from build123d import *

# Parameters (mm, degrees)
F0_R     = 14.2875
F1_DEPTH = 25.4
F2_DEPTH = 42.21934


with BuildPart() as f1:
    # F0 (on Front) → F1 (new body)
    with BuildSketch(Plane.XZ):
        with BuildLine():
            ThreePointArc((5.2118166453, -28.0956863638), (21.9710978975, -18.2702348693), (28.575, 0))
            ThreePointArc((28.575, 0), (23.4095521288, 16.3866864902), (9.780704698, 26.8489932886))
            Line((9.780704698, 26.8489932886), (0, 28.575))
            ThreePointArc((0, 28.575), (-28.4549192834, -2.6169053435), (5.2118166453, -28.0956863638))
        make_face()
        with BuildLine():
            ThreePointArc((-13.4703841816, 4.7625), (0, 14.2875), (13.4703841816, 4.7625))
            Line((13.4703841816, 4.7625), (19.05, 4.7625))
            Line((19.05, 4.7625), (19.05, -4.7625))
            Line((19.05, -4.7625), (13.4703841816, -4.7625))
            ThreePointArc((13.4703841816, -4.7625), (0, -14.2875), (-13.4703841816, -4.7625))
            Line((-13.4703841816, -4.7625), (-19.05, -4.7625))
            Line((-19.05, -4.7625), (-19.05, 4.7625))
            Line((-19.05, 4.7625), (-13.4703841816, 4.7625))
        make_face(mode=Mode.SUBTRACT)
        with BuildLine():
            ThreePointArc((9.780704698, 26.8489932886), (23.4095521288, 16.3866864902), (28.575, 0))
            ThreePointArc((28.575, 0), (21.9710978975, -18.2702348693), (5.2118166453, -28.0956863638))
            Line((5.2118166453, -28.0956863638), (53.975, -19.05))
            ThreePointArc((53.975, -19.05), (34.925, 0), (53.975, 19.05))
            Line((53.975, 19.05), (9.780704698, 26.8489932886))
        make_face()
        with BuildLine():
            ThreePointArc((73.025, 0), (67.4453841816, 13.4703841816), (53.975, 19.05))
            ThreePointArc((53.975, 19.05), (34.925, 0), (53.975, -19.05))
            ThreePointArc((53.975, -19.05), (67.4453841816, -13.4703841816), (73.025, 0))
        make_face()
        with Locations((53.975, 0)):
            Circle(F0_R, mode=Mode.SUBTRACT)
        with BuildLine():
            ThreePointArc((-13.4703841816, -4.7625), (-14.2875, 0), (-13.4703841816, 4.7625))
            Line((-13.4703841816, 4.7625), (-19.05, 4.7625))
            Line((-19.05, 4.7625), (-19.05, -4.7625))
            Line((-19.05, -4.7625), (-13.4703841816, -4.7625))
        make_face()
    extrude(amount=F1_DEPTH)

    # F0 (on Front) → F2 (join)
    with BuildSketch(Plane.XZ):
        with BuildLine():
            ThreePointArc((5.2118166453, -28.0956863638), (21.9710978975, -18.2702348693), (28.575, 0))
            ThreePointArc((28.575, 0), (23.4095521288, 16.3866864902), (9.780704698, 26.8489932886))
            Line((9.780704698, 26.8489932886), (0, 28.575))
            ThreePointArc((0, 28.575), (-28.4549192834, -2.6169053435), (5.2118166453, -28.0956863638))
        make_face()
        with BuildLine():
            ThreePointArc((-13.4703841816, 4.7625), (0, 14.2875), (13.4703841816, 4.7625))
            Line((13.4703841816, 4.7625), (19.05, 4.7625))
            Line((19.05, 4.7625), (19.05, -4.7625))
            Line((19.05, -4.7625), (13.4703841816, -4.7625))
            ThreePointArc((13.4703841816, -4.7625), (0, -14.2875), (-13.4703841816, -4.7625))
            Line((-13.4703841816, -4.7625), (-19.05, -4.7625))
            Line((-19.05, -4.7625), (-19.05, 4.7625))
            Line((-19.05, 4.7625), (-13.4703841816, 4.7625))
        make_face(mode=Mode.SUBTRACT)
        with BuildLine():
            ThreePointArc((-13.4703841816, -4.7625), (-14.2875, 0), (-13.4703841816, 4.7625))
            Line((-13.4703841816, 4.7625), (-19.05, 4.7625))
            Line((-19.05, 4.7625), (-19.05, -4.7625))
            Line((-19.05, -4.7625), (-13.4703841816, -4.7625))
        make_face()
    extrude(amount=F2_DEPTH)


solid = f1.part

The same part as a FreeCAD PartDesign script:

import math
import FreeCAD as App
import Part
import Sketcher
Q = App.Units.Quantity

doc = App.newDocument("Part")
body = doc.addObject("PartDesign::Body", "Body")

# Sketch on XZ plane
sketch1 = body.newObject("Sketcher::SketchObject", "Sketch")
sketch1.AttachmentSupport = (doc.getObject("XZ_Plane"), [""])
sketch1.MapMode = "FlatFace"
sketch1.addGeometry([
    Part.ArcOfCircle(Part.Circle(App.Vector(0, 0, 0), App.Vector(0, 0, 1), 29), math.radians(90), math.radians(281)),  # 0
    Part.LineSegment(App.Vector(5, -28, 0), App.Vector(54, -19, 0)),  # 1
    Part.ArcOfCircle(Part.Circle(App.Vector(54, 0, 0), App.Vector(0, 0, 1), 19), math.radians(-90), math.radians(90)),  # 2
    Part.LineSegment(App.Vector(54, 19, 0), App.Vector(10, 27, 0)),  # 3
    Part.LineSegment(App.Vector(10, 27, 0), App.Vector(0, 29, 0)),  # 4
    Part.Circle(App.Vector(54, 0, 0), App.Vector(0, 0, 1), 14),  # 5
    Part.ArcOfCircle(Part.Circle(App.Vector(0, 0, 0), App.Vector(0, 0, 1), 14), math.radians(19), math.radians(161)),  # 6
    Part.LineSegment(App.Vector(13, 5, 0), App.Vector(19, 5, 0)),  # 7
    Part.LineSegment(App.Vector(19, 5, 0), App.Vector(19, -5, 0)),  # 8
    Part.LineSegment(App.Vector(19, -5, 0), App.Vector(13, -5, 0)),  # 9
    Part.ArcOfCircle(Part.Circle(App.Vector(0, 0, 0), App.Vector(0, 0, 1), 14), math.radians(-161), math.radians(-19)),  # 10
    Part.ArcOfCircle(Part.Circle(App.Vector(0, 0, 0), App.Vector(0, 0, 1), 14), math.radians(161), math.radians(199)),  # 11
], False)
sketch1.addConstraint([
    Sketcher.Constraint("Tangent", 0, 2, 1, 1),
    Sketcher.Constraint("Coincident", 1, 2, 2, 1),
    Sketcher.Constraint("Coincident", 2, 2, 3, 1),
    Sketcher.Constraint("Coincident", 3, 2, 4, 1),
    Sketcher.Constraint("Coincident", 4, 2, 0, 1),
    Sketcher.Constraint("Coincident", 6, 1, 7, 1),
    Sketcher.Constraint("Coincident", 7, 2, 8, 1),
    Sketcher.Constraint("Coincident", 8, 2, 9, 1),
    Sketcher.Constraint("Coincident", 9, 2, 10, 2),
    Sketcher.Constraint("Tangent", 10, 1, 11, 2),
    Sketcher.Constraint("Tangent", 11, 1, 6, 2),
    Sketcher.Constraint("Horizontal", 7),
    Sketcher.Constraint("Vertical", 8),
    Sketcher.Constraint("Horizontal", 9),
    Sketcher.Constraint("Coincident", 0, 3, -1, 1),
    Sketcher.Constraint("Coincident", 6, 3, -1, 1),
    Sketcher.Constraint("Coincident", 10, 3, -1, 1),
    Sketcher.Constraint("Coincident", 5, 3, 2, 3),
    Sketcher.Constraint("Equal", 5, 6),
    Sketcher.Constraint("Symmetric", 1, 2, 2, 2, -1),
    Sketcher.Constraint("PointOnObject", 4, 2, -2),
    Sketcher.Constraint("Parallel", 3, 4),
    Sketcher.Constraint("Horizontal", 9, 2, 10, 1),
    Sketcher.Constraint("Horizontal", 7, 2, 11, 1),
    Sketcher.Constraint("Vertical", 5, 3, 1, 2),
    Sketcher.Constraint("Vertical", 6, 1, 9, 2),
    Sketcher.Constraint("Radius", 2, Q("0.75 in")),
    Sketcher.Constraint("Diameter", 5, Q("1.125 in")),
    Sketcher.Constraint("Radius", 0, Q("1.125 in")),
    Sketcher.Constraint("DistanceY", 8, 2, 8, 1, Q("0.375 in")),
    Sketcher.Constraint("DistanceX", -1, 1, 7, 2, Q("0.75 in")),
    Sketcher.Constraint("DistanceX", -1, 1, 2, 3, Q("2.125 in")),
    Sketcher.Constraint("Distance", 4, 9.931832),
])
pad1 = body.newObject("PartDesign::Pad", "Pad")
pad1.Profile = sketch1
pad1.Length = Q("1 in")

# Sketch on XZ plane
sketch2 = body.newObject("Sketcher::SketchObject", "Sketch001")
sketch2.AttachmentSupport = (doc.getObject("XZ_Plane"), [""])
sketch2.MapMode = "FlatFace"
sketch2.addGeometry([
    Part.ArcOfCircle(Part.Circle(App.Vector(0, 0, 0), App.Vector(0, 0, 1), 29), math.radians(-79), math.radians(70)),  # 0
    Part.LineSegment(App.Vector(10, 27, 0), App.Vector(0, 29, 0)),  # 1
    Part.ArcOfCircle(Part.Circle(App.Vector(0, 0, 0), App.Vector(0, 0, 1), 29), math.radians(90), math.radians(281)),  # 2
    Part.ArcOfCircle(Part.Circle(App.Vector(0, 0, 0), App.Vector(0, 0, 1), 14), math.radians(-161), math.radians(-19)),  # 3
    Part.ArcOfCircle(Part.Circle(App.Vector(0, 0, 0), App.Vector(0, 0, 1), 14), math.radians(161), math.radians(199)),  # 4
    Part.ArcOfCircle(Part.Circle(App.Vector(0, 0, 0), App.Vector(0, 0, 1), 14), math.radians(19), math.radians(161)),  # 5
    Part.LineSegment(App.Vector(13, 5, 0), App.Vector(19, 5, 0)),  # 6
    Part.LineSegment(App.Vector(19, 5, 0), App.Vector(19, -5, 0)),  # 7
    Part.LineSegment(App.Vector(19, -5, 0), App.Vector(13, -5, 0)),  # 8
], False)
sketch2.addConstraint([
    Sketcher.Constraint("Coincident", 0, 2, 1, 1),
    Sketcher.Constraint("Coincident", 1, 2, 2, 1),
    Sketcher.Constraint("Tangent", 2, 2, 0, 1),
    Sketcher.Constraint("Tangent", 3, 1, 4, 2),
    Sketcher.Constraint("Tangent", 4, 1, 5, 2),
    Sketcher.Constraint("Coincident", 5, 1, 6, 1),
    Sketcher.Constraint("Coincident", 6, 2, 7, 1),
    Sketcher.Constraint("Coincident", 7, 2, 8, 1),
    Sketcher.Constraint("Coincident", 8, 2, 3, 2),
    Sketcher.Constraint("Horizontal", 6),
    Sketcher.Constraint("Vertical", 7),
    Sketcher.Constraint("Horizontal", 8),
    Sketcher.Constraint("Coincident", 0, 3, -1, 1),
    Sketcher.Constraint("Coincident", 3, 3, -1, 1),
    Sketcher.Constraint("Coincident", 5, 3, -1, 1),
    Sketcher.Constraint("Equal", 0, 2),
    Sketcher.Constraint("PointOnObject", 1, 2, -2),
    Sketcher.Constraint("Horizontal", 4, 1, 5, 1),
    Sketcher.Constraint("Horizontal", 3, 1, 7, 2),
    Sketcher.Constraint("Vertical", 3, 1, 4, 1),
    Sketcher.Constraint("Radius", 0, Q("1.125 in")),
    Sketcher.Constraint("Radius", 3, Q("0.5625 in")),
    Sketcher.Constraint("DistanceY", 7, 2, 7, 1, Q("0.375 in")),
    Sketcher.Constraint("DistanceX", -1, 1, 6, 2, Q("0.75 in")),
    Sketcher.Constraint("Distance", 1, 9.931832),
    Sketcher.Constraint("DistanceX", -1, 1, 2, 2, 5.211817),
])
pad2 = body.newObject("PartDesign::Pad", "Pad001")
pad2.Profile = sketch2
pad2.Length = 42.21934

doc.recompute()
